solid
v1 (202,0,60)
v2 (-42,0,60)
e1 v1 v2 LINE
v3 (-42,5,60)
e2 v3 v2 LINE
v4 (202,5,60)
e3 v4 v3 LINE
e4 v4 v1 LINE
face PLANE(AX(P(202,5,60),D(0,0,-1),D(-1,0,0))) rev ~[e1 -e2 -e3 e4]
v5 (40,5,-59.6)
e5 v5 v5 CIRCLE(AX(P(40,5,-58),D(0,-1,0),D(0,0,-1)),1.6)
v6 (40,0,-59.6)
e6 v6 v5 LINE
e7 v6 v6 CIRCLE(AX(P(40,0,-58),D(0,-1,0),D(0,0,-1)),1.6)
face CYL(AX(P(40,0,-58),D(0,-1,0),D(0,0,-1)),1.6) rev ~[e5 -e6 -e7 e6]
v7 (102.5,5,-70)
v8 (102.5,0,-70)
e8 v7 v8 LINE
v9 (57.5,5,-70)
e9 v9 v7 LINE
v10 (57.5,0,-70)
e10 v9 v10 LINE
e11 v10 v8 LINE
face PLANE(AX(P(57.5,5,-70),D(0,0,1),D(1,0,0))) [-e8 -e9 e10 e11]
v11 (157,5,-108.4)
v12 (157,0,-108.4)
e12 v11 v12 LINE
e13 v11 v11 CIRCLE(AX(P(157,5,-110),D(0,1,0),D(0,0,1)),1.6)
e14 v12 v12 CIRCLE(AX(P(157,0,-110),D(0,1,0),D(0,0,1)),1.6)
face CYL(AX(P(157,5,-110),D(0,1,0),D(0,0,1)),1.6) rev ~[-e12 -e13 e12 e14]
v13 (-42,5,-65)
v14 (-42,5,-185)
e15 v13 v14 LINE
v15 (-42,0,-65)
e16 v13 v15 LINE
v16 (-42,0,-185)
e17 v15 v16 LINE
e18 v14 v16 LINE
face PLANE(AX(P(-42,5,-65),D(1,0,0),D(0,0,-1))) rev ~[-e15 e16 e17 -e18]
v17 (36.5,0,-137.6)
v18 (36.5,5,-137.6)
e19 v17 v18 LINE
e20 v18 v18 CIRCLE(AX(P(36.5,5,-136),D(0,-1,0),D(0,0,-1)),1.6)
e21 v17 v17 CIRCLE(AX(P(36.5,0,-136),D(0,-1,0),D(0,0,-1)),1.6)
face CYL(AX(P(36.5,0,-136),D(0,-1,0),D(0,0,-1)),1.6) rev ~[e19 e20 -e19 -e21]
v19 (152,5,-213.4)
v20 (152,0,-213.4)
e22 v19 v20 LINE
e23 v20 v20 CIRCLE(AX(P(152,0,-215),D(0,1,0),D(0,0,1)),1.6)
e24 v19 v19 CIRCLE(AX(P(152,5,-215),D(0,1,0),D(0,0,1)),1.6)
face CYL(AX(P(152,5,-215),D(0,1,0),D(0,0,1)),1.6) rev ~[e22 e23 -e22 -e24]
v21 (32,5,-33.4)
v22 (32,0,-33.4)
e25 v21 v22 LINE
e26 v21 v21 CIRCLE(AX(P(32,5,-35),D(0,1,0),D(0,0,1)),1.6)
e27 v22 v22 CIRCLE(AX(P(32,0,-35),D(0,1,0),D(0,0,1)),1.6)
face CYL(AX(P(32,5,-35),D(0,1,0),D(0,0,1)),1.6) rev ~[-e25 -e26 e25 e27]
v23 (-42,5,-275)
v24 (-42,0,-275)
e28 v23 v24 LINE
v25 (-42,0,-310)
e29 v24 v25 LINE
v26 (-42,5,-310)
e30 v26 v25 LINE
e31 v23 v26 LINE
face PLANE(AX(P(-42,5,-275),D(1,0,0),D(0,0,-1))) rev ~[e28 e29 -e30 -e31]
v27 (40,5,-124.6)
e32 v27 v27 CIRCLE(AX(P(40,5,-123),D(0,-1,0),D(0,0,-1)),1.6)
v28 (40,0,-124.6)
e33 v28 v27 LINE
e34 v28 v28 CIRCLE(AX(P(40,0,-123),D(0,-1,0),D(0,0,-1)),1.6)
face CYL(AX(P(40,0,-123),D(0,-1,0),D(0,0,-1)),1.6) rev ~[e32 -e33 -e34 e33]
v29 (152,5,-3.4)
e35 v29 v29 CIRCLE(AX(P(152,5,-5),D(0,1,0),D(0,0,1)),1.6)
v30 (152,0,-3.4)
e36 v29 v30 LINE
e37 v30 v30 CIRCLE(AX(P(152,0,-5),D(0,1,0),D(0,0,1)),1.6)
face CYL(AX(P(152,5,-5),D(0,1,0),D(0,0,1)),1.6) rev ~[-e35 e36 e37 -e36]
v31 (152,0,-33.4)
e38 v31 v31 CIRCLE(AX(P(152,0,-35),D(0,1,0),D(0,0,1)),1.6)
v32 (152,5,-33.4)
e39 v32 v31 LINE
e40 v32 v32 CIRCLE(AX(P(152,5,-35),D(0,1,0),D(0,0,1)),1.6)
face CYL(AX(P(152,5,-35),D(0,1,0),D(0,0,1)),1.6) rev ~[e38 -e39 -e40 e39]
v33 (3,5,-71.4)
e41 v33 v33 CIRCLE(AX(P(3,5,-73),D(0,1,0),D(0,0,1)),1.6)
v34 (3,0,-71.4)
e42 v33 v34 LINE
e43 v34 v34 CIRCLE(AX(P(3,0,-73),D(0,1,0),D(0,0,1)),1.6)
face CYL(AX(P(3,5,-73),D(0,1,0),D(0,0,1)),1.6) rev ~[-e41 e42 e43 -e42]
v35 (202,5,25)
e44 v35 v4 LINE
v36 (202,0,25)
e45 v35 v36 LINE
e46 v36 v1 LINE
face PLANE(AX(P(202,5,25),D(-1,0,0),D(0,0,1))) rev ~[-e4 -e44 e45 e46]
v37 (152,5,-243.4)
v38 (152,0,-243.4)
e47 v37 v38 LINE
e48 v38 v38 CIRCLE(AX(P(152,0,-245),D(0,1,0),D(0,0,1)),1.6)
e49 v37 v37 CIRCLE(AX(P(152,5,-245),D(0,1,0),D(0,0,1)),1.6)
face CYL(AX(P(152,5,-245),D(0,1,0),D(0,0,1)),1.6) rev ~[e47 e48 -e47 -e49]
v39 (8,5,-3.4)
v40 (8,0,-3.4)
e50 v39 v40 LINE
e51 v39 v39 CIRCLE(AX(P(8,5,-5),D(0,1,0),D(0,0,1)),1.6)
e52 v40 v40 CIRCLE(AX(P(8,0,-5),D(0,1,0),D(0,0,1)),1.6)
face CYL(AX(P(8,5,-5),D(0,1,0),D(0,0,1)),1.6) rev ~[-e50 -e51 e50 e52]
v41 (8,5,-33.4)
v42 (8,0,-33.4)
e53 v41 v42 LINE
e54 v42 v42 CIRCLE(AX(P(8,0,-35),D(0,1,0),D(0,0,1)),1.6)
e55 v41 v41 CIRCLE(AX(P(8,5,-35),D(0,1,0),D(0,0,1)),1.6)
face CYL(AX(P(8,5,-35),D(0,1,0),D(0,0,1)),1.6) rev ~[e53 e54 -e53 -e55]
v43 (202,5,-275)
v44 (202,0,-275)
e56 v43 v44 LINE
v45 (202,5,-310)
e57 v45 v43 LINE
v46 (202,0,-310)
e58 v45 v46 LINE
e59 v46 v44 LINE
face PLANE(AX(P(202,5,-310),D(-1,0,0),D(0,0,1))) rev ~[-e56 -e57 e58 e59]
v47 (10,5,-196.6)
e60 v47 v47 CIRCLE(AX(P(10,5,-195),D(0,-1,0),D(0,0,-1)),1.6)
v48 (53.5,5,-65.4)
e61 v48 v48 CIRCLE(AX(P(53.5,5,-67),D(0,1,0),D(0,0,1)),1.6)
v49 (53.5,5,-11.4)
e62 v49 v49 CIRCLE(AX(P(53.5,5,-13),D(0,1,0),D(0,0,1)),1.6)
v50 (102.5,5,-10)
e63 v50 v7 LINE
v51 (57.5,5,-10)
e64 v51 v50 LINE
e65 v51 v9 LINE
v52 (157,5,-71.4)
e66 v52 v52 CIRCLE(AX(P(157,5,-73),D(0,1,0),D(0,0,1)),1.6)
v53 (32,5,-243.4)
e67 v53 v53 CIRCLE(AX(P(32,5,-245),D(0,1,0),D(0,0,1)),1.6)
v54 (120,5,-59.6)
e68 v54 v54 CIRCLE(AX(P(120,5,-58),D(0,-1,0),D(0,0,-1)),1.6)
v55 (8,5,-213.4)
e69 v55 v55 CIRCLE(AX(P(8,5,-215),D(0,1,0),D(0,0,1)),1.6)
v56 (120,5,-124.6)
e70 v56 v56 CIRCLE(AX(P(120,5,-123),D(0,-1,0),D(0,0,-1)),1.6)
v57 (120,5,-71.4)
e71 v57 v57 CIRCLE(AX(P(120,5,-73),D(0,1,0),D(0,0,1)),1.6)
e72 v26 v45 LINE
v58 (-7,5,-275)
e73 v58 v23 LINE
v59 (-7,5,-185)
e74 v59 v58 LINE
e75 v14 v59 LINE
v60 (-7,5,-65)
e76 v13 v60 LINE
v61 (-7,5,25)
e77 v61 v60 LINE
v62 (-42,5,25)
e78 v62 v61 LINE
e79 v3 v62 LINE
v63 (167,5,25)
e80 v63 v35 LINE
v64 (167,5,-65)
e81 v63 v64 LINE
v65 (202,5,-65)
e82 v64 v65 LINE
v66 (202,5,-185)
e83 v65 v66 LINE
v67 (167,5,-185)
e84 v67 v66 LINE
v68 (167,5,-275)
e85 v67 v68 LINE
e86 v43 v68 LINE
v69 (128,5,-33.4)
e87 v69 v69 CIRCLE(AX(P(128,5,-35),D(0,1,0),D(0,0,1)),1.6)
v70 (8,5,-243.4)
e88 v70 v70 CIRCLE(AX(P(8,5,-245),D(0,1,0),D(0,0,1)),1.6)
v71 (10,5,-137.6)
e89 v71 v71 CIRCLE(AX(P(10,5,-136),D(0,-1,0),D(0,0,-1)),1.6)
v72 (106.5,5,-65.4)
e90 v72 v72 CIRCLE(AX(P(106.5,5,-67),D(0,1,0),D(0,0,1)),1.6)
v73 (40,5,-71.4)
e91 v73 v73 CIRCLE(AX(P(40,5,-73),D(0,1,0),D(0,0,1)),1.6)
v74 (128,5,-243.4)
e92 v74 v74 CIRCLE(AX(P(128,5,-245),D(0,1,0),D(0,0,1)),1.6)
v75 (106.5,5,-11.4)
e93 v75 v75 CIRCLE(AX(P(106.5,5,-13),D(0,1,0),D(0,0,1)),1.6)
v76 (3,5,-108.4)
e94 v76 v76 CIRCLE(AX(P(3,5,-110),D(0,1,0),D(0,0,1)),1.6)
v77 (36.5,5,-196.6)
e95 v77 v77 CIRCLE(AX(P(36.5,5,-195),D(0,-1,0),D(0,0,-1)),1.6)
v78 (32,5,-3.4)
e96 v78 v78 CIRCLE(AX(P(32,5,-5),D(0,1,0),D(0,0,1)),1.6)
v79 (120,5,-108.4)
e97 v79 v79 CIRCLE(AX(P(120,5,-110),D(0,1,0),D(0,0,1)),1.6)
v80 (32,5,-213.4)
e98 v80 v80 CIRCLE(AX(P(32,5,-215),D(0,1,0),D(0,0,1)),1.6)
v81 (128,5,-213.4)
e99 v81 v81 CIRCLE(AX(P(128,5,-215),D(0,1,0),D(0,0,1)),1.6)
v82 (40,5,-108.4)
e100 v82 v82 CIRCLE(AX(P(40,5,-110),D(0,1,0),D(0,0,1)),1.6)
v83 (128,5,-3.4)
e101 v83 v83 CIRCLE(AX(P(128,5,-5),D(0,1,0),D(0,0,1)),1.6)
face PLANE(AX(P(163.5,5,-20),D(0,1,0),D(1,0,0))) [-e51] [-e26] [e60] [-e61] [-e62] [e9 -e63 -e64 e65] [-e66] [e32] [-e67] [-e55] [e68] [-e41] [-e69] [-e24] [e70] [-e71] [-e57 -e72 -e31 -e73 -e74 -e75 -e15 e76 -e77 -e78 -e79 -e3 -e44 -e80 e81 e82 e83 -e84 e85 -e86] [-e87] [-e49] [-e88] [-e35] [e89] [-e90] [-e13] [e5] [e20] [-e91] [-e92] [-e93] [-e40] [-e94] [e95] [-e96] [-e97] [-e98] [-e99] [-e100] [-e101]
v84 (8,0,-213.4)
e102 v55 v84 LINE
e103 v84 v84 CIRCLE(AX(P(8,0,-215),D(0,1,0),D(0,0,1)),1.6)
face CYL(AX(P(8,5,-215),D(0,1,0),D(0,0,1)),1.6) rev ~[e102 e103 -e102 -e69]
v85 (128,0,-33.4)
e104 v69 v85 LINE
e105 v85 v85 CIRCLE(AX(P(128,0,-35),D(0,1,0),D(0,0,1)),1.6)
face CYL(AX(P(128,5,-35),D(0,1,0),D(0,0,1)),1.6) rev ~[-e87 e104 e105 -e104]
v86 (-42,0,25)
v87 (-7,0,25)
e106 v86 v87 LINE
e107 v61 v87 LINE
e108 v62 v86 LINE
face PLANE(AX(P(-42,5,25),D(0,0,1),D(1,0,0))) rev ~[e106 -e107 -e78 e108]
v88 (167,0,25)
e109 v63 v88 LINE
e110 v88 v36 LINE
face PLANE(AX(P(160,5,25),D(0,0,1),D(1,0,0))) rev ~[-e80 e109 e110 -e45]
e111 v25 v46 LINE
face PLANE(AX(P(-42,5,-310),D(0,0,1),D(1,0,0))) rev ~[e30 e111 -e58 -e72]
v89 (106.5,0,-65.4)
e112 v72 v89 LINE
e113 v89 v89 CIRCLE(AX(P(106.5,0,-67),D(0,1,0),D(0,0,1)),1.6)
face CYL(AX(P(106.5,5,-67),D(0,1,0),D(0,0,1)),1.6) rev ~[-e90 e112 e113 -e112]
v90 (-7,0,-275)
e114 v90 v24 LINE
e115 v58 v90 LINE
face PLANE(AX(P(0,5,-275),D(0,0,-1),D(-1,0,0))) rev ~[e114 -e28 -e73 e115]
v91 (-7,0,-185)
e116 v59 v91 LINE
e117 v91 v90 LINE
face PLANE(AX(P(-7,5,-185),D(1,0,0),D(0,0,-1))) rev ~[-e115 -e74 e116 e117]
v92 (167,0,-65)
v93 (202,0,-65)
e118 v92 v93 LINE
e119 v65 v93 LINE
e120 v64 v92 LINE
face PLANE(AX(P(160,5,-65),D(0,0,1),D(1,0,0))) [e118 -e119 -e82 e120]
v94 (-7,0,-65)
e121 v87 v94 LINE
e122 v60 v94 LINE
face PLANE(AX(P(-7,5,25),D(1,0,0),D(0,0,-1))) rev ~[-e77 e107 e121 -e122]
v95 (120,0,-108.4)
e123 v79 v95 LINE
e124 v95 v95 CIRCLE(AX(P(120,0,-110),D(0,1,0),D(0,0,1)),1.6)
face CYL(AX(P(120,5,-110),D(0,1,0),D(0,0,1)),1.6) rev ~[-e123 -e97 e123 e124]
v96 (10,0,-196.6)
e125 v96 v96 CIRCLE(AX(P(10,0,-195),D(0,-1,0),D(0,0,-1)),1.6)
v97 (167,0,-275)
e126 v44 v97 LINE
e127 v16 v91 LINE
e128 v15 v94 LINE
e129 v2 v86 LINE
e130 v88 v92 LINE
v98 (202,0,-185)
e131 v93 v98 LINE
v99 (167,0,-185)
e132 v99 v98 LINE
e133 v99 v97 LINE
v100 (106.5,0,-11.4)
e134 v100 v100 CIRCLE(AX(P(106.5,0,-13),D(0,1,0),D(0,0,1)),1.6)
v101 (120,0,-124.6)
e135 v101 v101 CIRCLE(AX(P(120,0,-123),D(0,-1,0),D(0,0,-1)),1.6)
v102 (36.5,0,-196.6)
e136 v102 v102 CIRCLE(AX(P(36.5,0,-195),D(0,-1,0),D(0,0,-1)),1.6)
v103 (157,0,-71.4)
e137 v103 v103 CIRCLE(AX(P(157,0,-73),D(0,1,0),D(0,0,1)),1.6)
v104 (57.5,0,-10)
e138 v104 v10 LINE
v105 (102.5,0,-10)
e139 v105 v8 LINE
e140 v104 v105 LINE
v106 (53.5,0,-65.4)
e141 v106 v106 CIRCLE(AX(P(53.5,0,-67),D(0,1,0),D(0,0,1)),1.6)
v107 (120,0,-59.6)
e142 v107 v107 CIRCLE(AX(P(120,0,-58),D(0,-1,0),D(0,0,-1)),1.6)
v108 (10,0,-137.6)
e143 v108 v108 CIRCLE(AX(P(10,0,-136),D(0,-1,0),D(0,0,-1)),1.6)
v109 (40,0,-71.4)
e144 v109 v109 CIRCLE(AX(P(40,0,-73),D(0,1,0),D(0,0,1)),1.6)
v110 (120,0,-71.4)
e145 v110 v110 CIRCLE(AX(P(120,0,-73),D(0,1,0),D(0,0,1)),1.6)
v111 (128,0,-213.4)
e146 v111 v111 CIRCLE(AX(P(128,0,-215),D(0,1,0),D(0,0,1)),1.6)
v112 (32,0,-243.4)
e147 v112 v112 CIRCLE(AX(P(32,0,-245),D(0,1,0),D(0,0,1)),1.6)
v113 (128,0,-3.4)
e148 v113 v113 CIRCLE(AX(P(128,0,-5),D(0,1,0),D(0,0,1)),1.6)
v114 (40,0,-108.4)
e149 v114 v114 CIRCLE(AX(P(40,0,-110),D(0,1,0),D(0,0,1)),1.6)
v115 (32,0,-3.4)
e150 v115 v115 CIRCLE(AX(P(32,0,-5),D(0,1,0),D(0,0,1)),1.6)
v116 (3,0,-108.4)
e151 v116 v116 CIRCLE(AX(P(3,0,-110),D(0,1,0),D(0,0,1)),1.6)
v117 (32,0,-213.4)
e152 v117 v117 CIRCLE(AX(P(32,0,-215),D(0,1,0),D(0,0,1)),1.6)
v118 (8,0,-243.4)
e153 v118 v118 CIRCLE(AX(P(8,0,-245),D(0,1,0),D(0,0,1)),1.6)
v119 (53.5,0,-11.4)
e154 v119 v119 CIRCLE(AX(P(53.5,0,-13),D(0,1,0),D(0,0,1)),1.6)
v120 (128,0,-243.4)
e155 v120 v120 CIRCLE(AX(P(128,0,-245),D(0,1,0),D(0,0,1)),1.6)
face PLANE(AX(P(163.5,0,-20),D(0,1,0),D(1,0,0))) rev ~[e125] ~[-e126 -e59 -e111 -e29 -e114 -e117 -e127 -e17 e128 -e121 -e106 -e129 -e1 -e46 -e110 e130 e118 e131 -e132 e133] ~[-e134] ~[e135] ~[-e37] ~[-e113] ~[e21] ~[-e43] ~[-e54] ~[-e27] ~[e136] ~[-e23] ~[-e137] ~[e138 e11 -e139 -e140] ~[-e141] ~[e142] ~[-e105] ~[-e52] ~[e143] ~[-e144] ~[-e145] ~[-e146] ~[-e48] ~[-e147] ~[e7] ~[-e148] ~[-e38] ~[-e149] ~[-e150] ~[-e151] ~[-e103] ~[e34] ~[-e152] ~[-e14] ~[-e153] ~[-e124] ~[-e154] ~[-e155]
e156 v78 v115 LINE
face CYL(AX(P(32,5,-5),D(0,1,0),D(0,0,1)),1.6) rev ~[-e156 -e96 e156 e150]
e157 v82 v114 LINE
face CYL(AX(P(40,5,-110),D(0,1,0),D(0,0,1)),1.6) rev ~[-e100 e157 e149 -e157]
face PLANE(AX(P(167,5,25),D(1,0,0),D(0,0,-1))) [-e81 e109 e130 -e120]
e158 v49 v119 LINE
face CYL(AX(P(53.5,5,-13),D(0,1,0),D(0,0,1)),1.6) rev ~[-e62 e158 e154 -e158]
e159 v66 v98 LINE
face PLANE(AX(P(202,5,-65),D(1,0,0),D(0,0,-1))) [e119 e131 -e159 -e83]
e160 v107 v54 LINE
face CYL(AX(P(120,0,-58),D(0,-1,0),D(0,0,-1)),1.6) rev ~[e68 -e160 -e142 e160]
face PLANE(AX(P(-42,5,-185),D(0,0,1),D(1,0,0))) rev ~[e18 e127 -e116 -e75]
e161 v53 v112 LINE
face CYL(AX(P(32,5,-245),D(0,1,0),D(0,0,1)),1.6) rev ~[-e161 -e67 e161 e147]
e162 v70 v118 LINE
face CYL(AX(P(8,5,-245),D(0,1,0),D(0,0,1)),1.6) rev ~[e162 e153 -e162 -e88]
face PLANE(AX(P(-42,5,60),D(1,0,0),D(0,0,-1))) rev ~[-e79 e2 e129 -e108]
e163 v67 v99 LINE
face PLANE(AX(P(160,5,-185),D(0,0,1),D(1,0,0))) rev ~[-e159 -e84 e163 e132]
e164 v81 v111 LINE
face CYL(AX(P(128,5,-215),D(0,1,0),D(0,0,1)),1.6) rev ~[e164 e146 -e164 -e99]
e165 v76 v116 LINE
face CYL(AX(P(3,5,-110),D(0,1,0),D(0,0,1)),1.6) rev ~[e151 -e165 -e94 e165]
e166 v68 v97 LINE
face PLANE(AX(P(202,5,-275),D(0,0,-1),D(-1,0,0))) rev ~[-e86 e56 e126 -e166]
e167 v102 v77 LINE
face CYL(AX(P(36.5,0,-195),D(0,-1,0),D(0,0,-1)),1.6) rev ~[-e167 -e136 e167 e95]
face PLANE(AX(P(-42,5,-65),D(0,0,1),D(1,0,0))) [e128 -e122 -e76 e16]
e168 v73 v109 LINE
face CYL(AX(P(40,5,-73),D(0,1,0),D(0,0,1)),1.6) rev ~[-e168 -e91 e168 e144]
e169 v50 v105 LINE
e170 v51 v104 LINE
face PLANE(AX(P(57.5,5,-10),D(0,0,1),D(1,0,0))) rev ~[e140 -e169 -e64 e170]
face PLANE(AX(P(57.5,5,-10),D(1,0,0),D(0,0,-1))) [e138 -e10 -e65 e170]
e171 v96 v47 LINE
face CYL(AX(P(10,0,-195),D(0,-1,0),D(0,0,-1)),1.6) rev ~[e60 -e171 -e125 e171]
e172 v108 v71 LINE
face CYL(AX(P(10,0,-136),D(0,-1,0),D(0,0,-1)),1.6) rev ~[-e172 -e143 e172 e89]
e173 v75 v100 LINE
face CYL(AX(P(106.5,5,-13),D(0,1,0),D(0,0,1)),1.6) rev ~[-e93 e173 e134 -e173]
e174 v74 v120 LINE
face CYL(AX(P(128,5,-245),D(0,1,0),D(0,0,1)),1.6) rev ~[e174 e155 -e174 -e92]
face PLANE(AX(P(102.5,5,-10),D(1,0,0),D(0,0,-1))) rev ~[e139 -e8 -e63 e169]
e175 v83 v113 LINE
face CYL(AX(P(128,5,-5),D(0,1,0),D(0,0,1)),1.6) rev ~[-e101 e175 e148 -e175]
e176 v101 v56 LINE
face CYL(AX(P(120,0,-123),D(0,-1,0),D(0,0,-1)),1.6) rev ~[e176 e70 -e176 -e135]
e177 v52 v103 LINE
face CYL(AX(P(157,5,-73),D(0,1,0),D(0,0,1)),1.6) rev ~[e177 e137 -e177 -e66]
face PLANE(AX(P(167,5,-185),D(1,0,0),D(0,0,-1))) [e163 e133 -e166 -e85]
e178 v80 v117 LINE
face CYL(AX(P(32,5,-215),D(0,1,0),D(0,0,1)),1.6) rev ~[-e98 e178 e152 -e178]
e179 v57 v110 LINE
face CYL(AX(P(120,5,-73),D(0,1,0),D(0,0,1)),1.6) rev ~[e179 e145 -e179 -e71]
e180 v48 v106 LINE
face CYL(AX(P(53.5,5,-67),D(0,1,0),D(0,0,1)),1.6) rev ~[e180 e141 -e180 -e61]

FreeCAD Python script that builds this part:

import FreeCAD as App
import Part
import Sketcher
from FreeCAD import Vector


def add_polygon(sketch, points):
    """Adds a closed chain of lines whose ends are joined by coincident constraints."""
    first, n = sketch.GeometryCount, len(points)
    for a, b in zip(points, points[1:] + points[:1]):
        sketch.addGeometry(Part.LineSegment(App.Vector(*a, 0), App.Vector(*b, 0)), False)
    for i in range(n):
        sketch.addConstraint(Sketcher.Constraint("Coincident", first + i, 2, first + (i + 1) % n, 1))

doc = App.newDocument("Part")
body = doc.addObject("PartDesign::Body", "Body")

# Sketch on XZ plane
sketch1 = body.newObject("Sketcher::SketchObject", "Sketch")
sketch1.AttachmentSupport = (doc.getObject("XZ_Plane"), [""])
sketch1.MapMode = "FlatFace"
add_polygon(sketch1, [(0, -250), (0, 0), (160, 0), (160, -250)])  # lines 0-3
sketch1.addConstraint(Sketcher.Constraint("Vertical", 0))
sketch1.addConstraint(Sketcher.Constraint("Horizontal", 1))
sketch1.addConstraint(Sketcher.Constraint("Vertical", 2))
sketch1.addConstraint(Sketcher.Constraint("Horizontal", 3))
sketch1.addConstraint(Sketcher.Constraint("Coincident", 0, 2, -1, 1))
sketch1.addConstraint(Sketcher.Constraint("DistanceX", 1, 1, 1, 2, 160.0))
sketch1.addConstraint(Sketcher.Constraint("DistanceY", 0, 1, 0, 2, 250.0))
pad1 = body.newObject("PartDesign::Pad", "Pad")
pad1.Profile = sketch1
pad1.Length = 5
pad1.Reversed = True

# Sketch on XZ plane
sketch2 = body.newObject("Sketcher::SketchObject", "Sketch001")
sketch2.AttachmentSupport = (doc.getObject("XZ_Plane"), [""])
sketch2.MapMode = "FlatFace"
sketch2.AttachmentOffset = App.Placement(Vector(0, 0, -5), App.Rotation())
sketch2.addGeometry(Part.Circle(Vector(8, -245, 0), Vector(0, 0, 1), 1.6), False)
sketch2.addGeometry(Part.Circle(Vector(32, -245, 0), Vector(0, 0, 1), 1.6), False)
sketch2.addGeometry(Part.Circle(Vector(8, -215, 0), Vector(0, 0, 1), 1.6), False)
sketch2.addGeometry(Part.Circle(Vector(32, -215, 0), Vector(0, 0, 1), 1.6), False)
sketch2.addGeometry(Part.Circle(Vector(128, -245, 0), Vector(0, 0, 1), 1.6), False)
sketch2.addGeometry(Part.Circle(Vector(152, -245, 0), Vector(0, 0, 1), 1.6), False)
sketch2.addGeometry(Part.Circle(Vector(128, -215, 0), Vector(0, 0, 1), 1.6), False)
sketch2.addGeometry(Part.Circle(Vector(152, -215, 0), Vector(0, 0, 1), 1.6), False)
sketch2.addGeometry(Part.Circle(Vector(32, -35, 0), Vector(0, 0, 1), 1.6), False)
sketch2.addGeometry(Part.Circle(Vector(8, -35, 0), Vector(0, 0, 1), 1.6), False)
sketch2.addGeometry(Part.Circle(Vector(8, -5, 0), Vector(0, 0, 1), 1.6), False)
sketch2.addGeometry(Part.Circle(Vector(32, -5, 0), Vector(0, 0, 1), 1.6), False)
sketch2.addGeometry(Part.Circle(Vector(128, -35, 0), Vector(0, 0, 1), 1.6), False)
sketch2.addGeometry(Part.Circle(Vector(152, -35, 0), Vector(0, 0, 1), 1.6), False)
sketch2.addGeometry(Part.Circle(Vector(128, -5, 0), Vector(0, 0, 1), 1.6), False)
sketch2.addGeometry(Part.Circle(Vector(152, -5, 0), Vector(0, 0, 1), 1.6), False)
sketch2.addConstraint(Sketcher.Constraint("Equal", 0, 1))
sketch2.addConstraint(Sketcher.Constraint("Equal", 1, 2))
sketch2.addConstraint(Sketcher.Constraint("Equal", 2, 3))
sketch2.addConstraint(Sketcher.Constraint("Equal", 3, 4))
sketch2.addConstraint(Sketcher.Constraint("Equal", 4, 5))
sketch2.addConstraint(Sketcher.Constraint("Equal", 5, 6))
sketch2.addConstraint(Sketcher.Constraint("Equal", 6, 7))
sketch2.addConstraint(Sketcher.Constraint("Equal", 7, 8))
sketch2.addConstraint(Sketcher.Constraint("Equal", 8, 9))
sketch2.addConstraint(Sketcher.Constraint("Equal", 9, 10))
sketch2.addConstraint(Sketcher.Constraint("Equal", 10, 11))
sketch2.addConstraint(Sketcher.Constraint("Equal", 11, 12))
sketch2.addConstraint(Sketcher.Constraint("Equal", 12, 13))
sketch2.addConstraint(Sketcher.Constraint("Equal", 13, 14))
sketch2.addConstraint(Sketcher.Constraint("Equal", 14, 15))
sketch2.addConstraint(Sketcher.Constraint("Horizontal", 0, 3, 1, 3))
sketch2.addConstraint(Sketcher.Constraint("Horizontal", 2, 3, 3, 3))
sketch2.addConstraint(Sketcher.Constraint("Horizontal", 1, 3, 4, 3))
sketch2.addConstraint(Sketcher.Constraint("Horizontal", 4, 3, 5, 3))
sketch2.addConstraint(Sketcher.Constraint("Horizontal", 3, 3, 6, 3))
sketch2.addConstraint(Sketcher.Constraint("Horizontal", 6, 3, 7, 3))
sketch2.addConstraint(Sketcher.Constraint("Horizontal", 8, 3, 9, 3))
sketch2.addConstraint(Sketcher.Constraint("Horizontal", 10, 3, 11, 3))
sketch2.addConstraint(Sketcher.Constraint("Horizontal", 9, 3, 12, 3))
sketch2.addConstraint(Sketcher.Constraint("Horizontal", 12, 3, 13, 3))
sketch2.addConstraint(Sketcher.Constraint("Horizontal", 11, 3, 14, 3))
sketch2.addConstraint(Sketcher.Constraint("Horizontal", 14, 3, 15, 3))
sketch2.addConstraint(Sketcher.Constraint("Vertical", 0, 3, 2, 3))
sketch2.addConstraint(Sketcher.Constraint("Vertical", 1, 3, 3, 3))
sketch2.addConstraint(Sketcher.Constraint("Vertical", 4, 3, 6, 3))
sketch2.addConstraint(Sketcher.Constraint("Vertical", 5, 3, 7, 3))
sketch2.addConstraint(Sketcher.Constraint("Vertical", 3, 3, 8, 3))
sketch2.addConstraint(Sketcher.Constraint("Vertical", 2, 3, 9, 3))
sketch2.addConstraint(Sketcher.Constraint("Vertical", 9, 3, 10, 3))
sketch2.addConstraint(Sketcher.Constraint("Vertical", 8, 3, 11, 3))
sketch2.addConstraint(Sketcher.Constraint("Vertical", 6, 3, 12, 3))
sketch2.addConstraint(Sketcher.Constraint("Vertical", 7, 3, 13, 3))
sketch2.addConstraint(Sketcher.Constraint("Vertical", 12, 3, 14, 3))
sketch2.addConstraint(Sketcher.Constraint("Vertical", 13, 3, 15, 3))
sketch2.addConstraint(Sketcher.Constraint("Diameter", 0, 3.2))
sketch2.addConstraint(Sketcher.Constraint("DistanceX", -1, 1, 0, 3, 8.0))
sketch2.addConstraint(Sketcher.Constraint("DistanceY", 0, 3, -1, 1, 245.0))
sketch2.addConstraint(Sketcher.Constraint("DistanceX", -1, 1, 1, 3, 32.0))
sketch2.addConstraint(Sketcher.Constraint("DistanceY", 2, 3, -1, 1, 215.0))
sketch2.addConstraint(Sketcher.Constraint("DistanceX", -1, 1, 4, 3, 128.0))
sketch2.addConstraint(Sketcher.Constraint("DistanceX", -1, 1, 5, 3, 152.0))
sketch2.addConstraint(Sketcher.Constraint("DistanceY", 8, 3, -1, 1, 35.0))
sketch2.addConstraint(Sketcher.Constraint("DistanceY", 10, 3, -1, 1, 5.0))
pocket1 = body.newObject("PartDesign::Pocket", "Pocket")
pocket1.Profile = sketch2
pocket1.Type = "ThroughAll"
pocket1.Reversed = True

# Sketch on XZ plane
sketch3 = body.newObject("Sketcher::SketchObject", "Sketch002")
sketch3.AttachmentSupport = (doc.getObject("XZ_Plane"), [""])
sketch3.MapMode = "FlatFace"
sketch3.AttachmentOffset = App.Placement(Vector(0, 0, -5), App.Rotation())
sketch3.addGeometry(Part.Circle(Vector(3, -110, 0), Vector(0, 0, 1), 1.6), False)
sketch3.addGeometry(Part.Circle(Vector(40, -73, 0), Vector(0, 0, 1), 1.6), False)
sketch3.addGeometry(Part.Circle(Vector(3, -73, 0), Vector(0, 0, 1), 1.6), False)
sketch3.addGeometry(Part.Circle(Vector(40, -110, 0), Vector(0, 0, 1), 1.6), False)
sketch3.addGeometry(Part.Circle(Vector(120, -110, 0), Vector(0, 0, 1), 1.6), False)
sketch3.addGeometry(Part.Circle(Vector(157, -73, 0), Vector(0, 0, 1), 1.6), False)
sketch3.addGeometry(Part.Circle(Vector(120, -73, 0), Vector(0, 0, 1), 1.6), False)
sketch3.addGeometry(Part.Circle(Vector(157, -110, 0), Vector(0, 0, 1), 1.6), False)
sketch3.addConstraint(Sketcher.Constraint("Equal", 0, 1))
sketch3.addConstraint(Sketcher.Constraint("Equal", 1, 2))
sketch3.addConstraint(Sketcher.Constraint("Equal", 2, 3))
sketch3.addConstraint(Sketcher.Constraint("Equal", 3, 4))
sketch3.addConstraint(Sketcher.Constraint("Equal", 4, 5))
sketch3.addConstraint(Sketcher.Constraint("Equal", 5, 6))
sketch3.addConstraint(Sketcher.Constraint("Equal", 6, 7))
sketch3.addConstraint(Sketcher.Constraint("Horizontal", 1, 3, 2, 3))
sketch3.addConstraint(Sketcher.Constraint("Horizontal", 0, 3, 3, 3))
sketch3.addConstraint(Sketcher.Constraint("Horizontal", 3, 3, 4, 3))
sketch3.addConstraint(Sketcher.Constraint("Horizontal", 2, 3, 5, 3))
sketch3.addConstraint(Sketcher.Constraint("Horizontal", 5, 3, 6, 3))
sketch3.addConstraint(Sketcher.Constraint("Horizontal", 4, 3, 7, 3))
sketch3.addConstraint(Sketcher.Constraint("Vertical", 0, 3, 2, 3))
sketch3.addConstraint(Sketcher.Constraint("Vertical", 1, 3, 3, 3))
sketch3.addConstraint(Sketcher.Constraint("Vertical", 4, 3, 6, 3))
sketch3.addConstraint(Sketcher.Constraint("Vertical", 5, 3, 7, 3))
sketch3.addConstraint(Sketcher.Constraint("Diameter", 0, 3.2))
sketch3.addConstraint(Sketcher.Constraint("DistanceX", -1, 1, 0, 3, 3.0))
sketch3.addConstraint(Sketcher.Constraint("DistanceY", 0, 3, -1, 1, 110.0))
sketch3.addConstraint(Sketcher.Constraint("DistanceX", -1, 1, 1, 3, 40.0))
sketch3.addConstraint(Sketcher.Constraint("DistanceY", 1, 3, -1, 1, 73.0))
sketch3.addConstraint(Sketcher.Constraint("DistanceX", -1, 1, 4, 3, 120.0))
sketch3.addConstraint(Sketcher.Constraint("DistanceX", -1, 1, 5, 3, 157.0))
pocket2 = body.newObject("PartDesign::Pocket", "Pocket001")
pocket2.Profile = sketch3
pocket2.Type = "ThroughAll"
pocket2.Reversed = True

# Sketch on XZ plane
sketch4 = body.newObject("Sketcher::SketchObject", "Sketch003")
sketch4.AttachmentSupport = (doc.getObject("XZ_Plane"), [""])
sketch4.MapMode = "FlatFace"
sketch4.addGeometry(Part.Circle(Vector(36.5, -195, 0), Vector(0, 0, 1), 1.6), False)
sketch4.addGeometry(Part.Circle(Vector(10, -136, 0), Vector(0, 0, 1), 1.6), False)
sketch4.addGeometry(Part.Circle(Vector(10, -195, 0), Vector(0, 0, 1), 1.6), False)
sketch4.addGeometry(Part.Circle(Vector(36.5, -136, 0), Vector(0, 0, 1), 1.6), False)
sketch4.addConstraint(Sketcher.Constraint("Equal", 0, 1))
sketch4.addConstraint(Sketcher.Constraint("Equal", 1, 2))
sketch4.addConstraint(Sketcher.Constraint("Equal", 2, 3))
sketch4.addConstraint(Sketcher.Constraint("Horizontal", 0, 3, 2, 3))
sketch4.addConstraint(Sketcher.Constraint("Horizontal", 1, 3, 3, 3))
sketch4.addConstraint(Sketcher.Constraint("Vertical", 1, 3, 2, 3))
sketch4.addConstraint(Sketcher.Constraint("Vertical", 0, 3, 3, 3))
sketch4.addConstraint(Sketcher.Constraint("Diameter", 0, 3.2))
sketch4.addConstraint(Sketcher.Constraint("DistanceY", 0, 3, -1, 1, 195.0))
sketch4.addConstraint(Sketcher.Constraint("DistanceX", -1, 1, 1, 3, 10.0))
sketch4.addConstraint(Sketcher.Constraint("DistanceY", 1, 3, -1, 1, 136.0))
sketch4.addConstraint(Sketcher.Constraint("DistanceX", -1, 1, 0, 3, 36.5))
pocket3 = body.newObject("PartDesign::Pocket", "Pocket002")
pocket3.Profile = sketch4
pocket3.Length = 10

# Sketch on XZ plane
sketch5 = body.newObject("Sketcher::SketchObject", "Sketch004")
sketch5.AttachmentSupport = (doc.getObject("XZ_Plane"), [""])
sketch5.MapMode = "FlatFace"
sketch5.addGeometry(Part.Circle(Vector(40, -123, 0), Vector(0, 0, 1), 1.6), False)
sketch5.addGeometry(Part.Circle(Vector(120, -123, 0), Vector(0, 0, 1), 1.6), False)
sketch5.addGeometry(Part.Circle(Vector(40, -58, 0), Vector(0, 0, 1), 1.6), False)
sketch5.addGeometry(Part.Circle(Vector(120, -58, 0), Vector(0, 0, 1), 1.6), False)
sketch5.addConstraint(Sketcher.Constraint("Equal", 0, 1))
sketch5.addConstraint(Sketcher.Constraint("Equal", 1, 2))
sketch5.addConstraint(Sketcher.Constraint("Equal", 2, 3))
sketch5.addConstraint(Sketcher.Constraint("Horizontal", 0, 3, 1, 3))
sketch5.addConstraint(Sketcher.Constraint("Horizontal", 2, 3, 3, 3))
sketch5.addConstraint(Sketcher.Constraint("Vertical", 0, 3, 2, 3))
sketch5.addConstraint(Sketcher.Constraint("Vertical", 1, 3, 3, 3))
sketch5.addConstraint(Sketcher.Constraint("Diameter", 0, 3.2))
sketch5.addConstraint(Sketcher.Constraint("DistanceX", -1, 1, 0, 3, 40.0))
sketch5.addConstraint(Sketcher.Constraint("DistanceY", 0, 3, -1, 1, 123.0))
sketch5.addConstraint(Sketcher.Constraint("DistanceX", -1, 1, 1, 3, 120.0))
sketch5.addConstraint(Sketcher.Constraint("DistanceY", 2, 3, -1, 1, 58.0))
pocket4 = body.newObject("PartDesign::Pocket", "Pocket003")
pocket4.Profile = sketch5
pocket4.Type = "ThroughAll"

# Sketch on XZ plane
sketch6 = body.newObject("Sketcher::SketchObject", "Sketch005")
sketch6.AttachmentSupport = (doc.getObject("XZ_Plane"), [""])
sketch6.MapMode = "FlatFace"
sketch6.AttachmentOffset = App.Placement(Vector(0, 0, -5), App.Rotation())
add_polygon(sketch6, [(58, -70), (58, -10), (102, -10), (102, -70)])  # lines 0-3
sketch6.addConstraint(Sketcher.Constraint("Vertical", 0))
sketch6.addConstraint(Sketcher.Constraint("Horizontal", 1))
sketch6.addConstraint(Sketcher.Constraint("Vertical", 2))
sketch6.addConstraint(Sketcher.Constraint("Horizontal", 3))
sketch6.addConstraint(Sketcher.Constraint("DistanceX", 1, 1, 1, 2, 45.0))
sketch6.addConstraint(Sketcher.Constraint("DistanceY", 0, 1, 0, 2, 60.0))
sketch6.addConstraint(Sketcher.Constraint("DistanceY", 0, 2, -1, 1, 10.0))
sketch6.addConstraint(Sketcher.Constraint("DistanceX", -1, 1, 0, 2, 57.5))
pocket5 = body.newObject("PartDesign::Pocket", "Pocket004")
pocket5.Profile = sketch6
pocket5.Type = "ThroughAll"
pocket5.Reversed = True

# Sketch on XZ plane
sketch7 = body.newObject("Sketcher::SketchObject", "Sketch006")
sketch7.AttachmentSupport = (doc.getObject("XZ_Plane"), [""])
sketch7.MapMode = "FlatFace"
sketch7.AttachmentOffset = App.Placement(Vector(0, 0, -5), App.Rotation())
sketch7.addGeometry(Part.Circle(Vector(106.5, -13, 0), Vector(0, 0, 1), 1.6), False)
sketch7.addGeometry(Part.Circle(Vector(53.5, -67, 0), Vector(0, 0, 1), 1.6), False)
sketch7.addGeometry(Part.Circle(Vector(106.5, -67, 0), Vector(0, 0, 1), 1.6), False)
sketch7.addGeometry(Part.Circle(Vector(53.5, -13, 0), Vector(0, 0, 1), 1.6), False)
sketch7.addConstraint(Sketcher.Constraint("Equal", 0, 1))
sketch7.addConstraint(Sketcher.Constraint("Equal", 1, 2))
sketch7.addConstraint(Sketcher.Constraint("Equal", 2, 3))
sketch7.addConstraint(Sketcher.Constraint("Horizontal", 1, 3, 2, 3))
sketch7.addConstraint(Sketcher.Constraint("Horizontal", 0, 3, 3, 3))
sketch7.addConstraint(Sketcher.Constraint("Vertical", 0, 3, 2, 3))
sketch7.addConstraint(Sketcher.Constraint("Vertical", 1, 3, 3, 3))
sketch7.addConstraint(Sketcher.Constraint("Diameter", 0, 3.2))
sketch7.addConstraint(Sketcher.Constraint("DistanceY", 0, 3, -1, 1, 13.0))
sketch7.addConstraint(Sketcher.Constraint("DistanceY", 1, 3, -1, 1, 67.0))
sketch7.addConstraint(Sketcher.Constraint("DistanceX", 1, 3, 0, 3, 53.0))
sketch7.addConstraint(Sketcher.Constraint("DistanceX", -1, 1, 0, 3, 106.5))
pocket6 = body.newObject("PartDesign::Pocket", "Pocket005")
pocket6.Profile = sketch7
pocket6.Type = "ThroughAll"
pocket6.Reversed = True

# Sketch on XZ plane
sketch8 = body.newObject("Sketcher::SketchObject", "Sketch007")
sketch8.AttachmentSupport = (doc.getObject("XZ_Plane"), [""])
sketch8.MapMode = "FlatFace"
sketch8.AttachmentOffset = App.Placement(Vector(0, 0, -5), App.Rotation())
add_polygon(sketch8, [(-42, 60), (202, 60), (202, 25), (160, 25), (160, 0), (0, 0), (0, 25), (-42, 25)])  # lines 0-7
add_polygon(sketch8, [(160, -275), (202, -275), (202, -310), (-42, -310), (-42, -275), (0, -275), (0, -250), (160, -250)])  # lines 8-15
sketch8.addConstraint(Sketcher.Constraint("Horizontal", 0))
sketch8.addConstraint(Sketcher.Constraint("Vertical", 1))
sketch8.addConstraint(Sketcher.Constraint("Horizontal", 2))
sketch8.addConstraint(Sketcher.Constraint("Vertical", 3))
sketch8.addConstraint(Sketcher.Constraint("Horizontal", 4))
sketch8.addConstraint(Sketcher.Constraint("Vertical", 5))
sketch8.addConstraint(Sketcher.Constraint("Horizontal", 6))
sketch8.addConstraint(Sketcher.Constraint("Vertical", 7))
sketch8.addConstraint(Sketcher.Constraint("Horizontal", 8))
sketch8.addConstraint(Sketcher.Constraint("Vertical", 9))
sketch8.addConstraint(Sketcher.Constraint("Horizontal", 10))
sketch8.addConstraint(Sketcher.Constraint("Vertical", 11))
sketch8.addConstraint(Sketcher.Constraint("Horizontal", 12))
sketch8.addConstraint(Sketcher.Constraint("Vertical", 13))
sketch8.addConstraint(Sketcher.Constraint("Horizontal", 14))
sketch8.addConstraint(Sketcher.Constraint("Vertical", 15))
sketch8.addConstraint(Sketcher.Constraint("Coincident", 4, 2, -1, 1))
sketch8.addConstraint(Sketcher.Constraint("PointOnObject", 12, 2, -2))
sketch8.addConstraint(Sketcher.Constraint("Horizontal", 2, 2, 5, 2))
sketch8.addConstraint(Sketcher.Constraint("Horizontal", 8, 2, 11, 2))
sketch8.addConstraint(Sketcher.Constraint("Vertical", 1, 2, 8, 2))
sketch8.addConstraint(Sketcher.Constraint("Vertical", 7, 2, 10, 2))
sketch8.addConstraint(Sketcher.Constraint("Vertical", 3, 2, 14, 2))
sketch8.addConstraint(Sketcher.Constraint("Equal", 2, 6))
sketch8.addConstraint(Sketcher.Constraint("Equal", 7, 9))
sketch8.addConstraint(Sketcher.Constraint("Equal", 5, 13))
sketch8.addConstraint(Sketcher.Constraint("DistanceX", 0, 1, 0, 2, 244.0))
sketch8.addConstraint(Sketcher.Constraint("DistanceX", 2, 2, 2, 1, 42.0))
sketch8.addConstraint(Sketcher.Constraint("DistanceY", 1, 2, 1, 1, 35.0))
sketch8.addConstraint(Sketcher.Constraint("DistanceY", 3, 2, 3, 1, 25.0))
sketch8.addConstraint(Sketcher.Constraint("DistanceY", 8, 2, -1, 1, 275.0))
pad2 = body.newObject("PartDesign::Pad", "Pad001")
pad2.Profile = sketch8
pad2.Length = 5

# Sketch on XZ plane
sketch9 = body.newObject("Sketcher::SketchObject", "Sketch008")
sketch9.AttachmentSupport = (doc.getObject("XZ_Plane"), [""])
sketch9.MapMode = "FlatFace"
sketch9.AttachmentOffset = App.Placement(Vector(0, 0, -5), App.Rotation())
add_polygon(sketch9, [(160, -185), (160, -65), (202, -65), (202, -185)])  # lines 0-3
add_polygon(sketch9, [(-42, -185), (-42, -65), (0, -65), (0, -185)])  # lines 4-7
sketch9.addConstraint(Sketcher.Constraint("Vertical", 0))
sketch9.addConstraint(Sketcher.Constraint("Horizontal", 1))
sketch9.addConstraint(Sketcher.Constraint("Vertical", 2))
sketch9.addConstraint(Sketcher.Constraint("Horizontal", 3))
sketch9.addConstraint(Sketcher.Constraint("Vertical", 4))
sketch9.addConstraint(Sketcher.Constraint("Horizontal", 5))
sketch9.addConstraint(Sketcher.Constraint("Vertical", 6))
sketch9.addConstraint(Sketcher.Constraint("Horizontal", 7))
sketch9.addConstraint(Sketcher.Constraint("PointOnObject", 5, 2, -2))
sketch9.addConstraint(Sketcher.Constraint("Horizontal", 1, 2, 4, 2))
sketch9.addConstraint(Sketcher.Constraint("Horizontal", 3, 2, 6, 2))
sketch9.addConstraint(Sketcher.Constraint("Equal", 3, 5))
sketch9.addConstraint(Sketcher.Constraint("DistanceX", 1, 1, 1, 2, 42.0))
sketch9.addConstraint(Sketcher.Constraint("DistanceY", 0, 1, 0, 2, 120.0))
sketch9.addConstraint(Sketcher.Constraint("DistanceX", -1, 1, 0, 2, 160.0))
sketch9.addConstraint(Sketcher.Constraint("DistanceY", 0, 2, -1, 1, 65.0))
pad3 = body.newObject("PartDesign::Pad", "Pad002")
pad3.Profile = sketch9
pad3.Length = 5

# Sketch on XZ plane
sketch10 = body.newObject("Sketcher::SketchObject", "Sketch009")
sketch10.AttachmentSupport = (doc.getObject("XZ_Plane"), [""])
sketch10.MapMode = "FlatFace"
sketch10.AttachmentOffset = App.Placement(Vector(0, 0, -5), App.Rotation())
add_polygon(sketch10, [(160, -65), (160, 25), (167, 25), (167, -65)])  # lines 0-3
add_polygon(sketch10, [(160, -275), (160, -185), (167, -185), (167, -275)])  # lines 4-7
add_polygon(sketch10, [(-7, -65), (-7, 25), (0, 25), (0, -65)])  # lines 8-11
add_polygon(sketch10, [(-7, -275), (-7, -185), (0, -185), (0, -275)])  # lines 12-15
sketch10.addConstraint(Sketcher.Constraint("Vertical", 0))
sketch10.addConstraint(Sketcher.Constraint("Horizontal", 1))
sketch10.addConstraint(Sketcher.Constraint("Vertical", 2))
sketch10.addConstraint(Sketcher.Constraint("Horizontal", 3))
sketch10.addConstraint(Sketcher.Constraint("Vertical", 4))
sketch10.addConstraint(Sketcher.Constraint("Horizontal", 5))
sketch10.addConstraint(Sketcher.Constraint("Vertical", 6))
sketch10.addConstraint(Sketcher.Constraint("Horizontal", 7))
sketch10.addConstraint(Sketcher.Constraint("Vertical", 8))
sketch10.addConstraint(Sketcher.Constraint("Horizontal", 9))
sketch10.addConstraint(Sketcher.Constraint("Vertical", 10))
sketch10.addConstraint(Sketcher.Constraint("Horizontal", 11))
sketch10.addConstraint(Sketcher.Constraint("Vertical", 12))
sketch10.addConstraint(Sketcher.Constraint("Horizontal", 13))
sketch10.addConstraint(Sketcher.Constraint("Vertical", 14))
sketch10.addConstraint(Sketcher.Constraint("Horizontal", 15))
sketch10.addConstraint(Sketcher.Constraint("PointOnObject", 9, 2, -2))
sketch10.addConstraint(Sketcher.Constraint("PointOnObject", 13, 2, -2))
sketch10.addConstraint(Sketcher.Constraint("Horizontal", 1, 2, 8, 2))
sketch10.addConstraint(Sketcher.Constraint("Horizontal", 3, 2, 10, 2))
sketch10.addConstraint(Sketcher.Constraint("Horizontal", 5, 2, 12, 2))
sketch10.addConstraint(Sketcher.Constraint("Horizontal", 7, 2, 14, 2))
sketch10.addConstraint(Sketcher.Constraint("Vertical", 3, 2, 4, 2))
sketch10.addConstraint(Sketcher.Constraint("Vertical", 2, 2, 5, 2))
sketch10.addConstraint(Sketcher.Constraint("Vertical", 11, 2, 12, 2))
sketch10.addConstraint(Sketcher.Constraint("Equal", 7, 9))
sketch10.addConstraint(Sketcher.Constraint("Equal", 2, 4))
sketch10.addConstraint(Sketcher.Constraint("DistanceX", 1, 1, 1, 2, 7.0))
sketch10.addConstraint(Sketcher.Constraint("DistanceY", 0, 1, 0, 2, 90.0))
sketch10.addConstraint(Sketcher.Constraint("DistanceX", -1, 1, 0, 2, 160.0))
sketch10.addConstraint(Sketcher.Constraint("DistanceY", -1, 1, 0, 2, 25.0))
sketch10.addConstraint(Sketcher.Constraint("DistanceY", 4, 2, -1, 1, 185.0))
pad4 = body.newObject("PartDesign::Pad", "Pad003")
pad4.Profile = sketch10
pad4.Length = 5

doc.recompute()
